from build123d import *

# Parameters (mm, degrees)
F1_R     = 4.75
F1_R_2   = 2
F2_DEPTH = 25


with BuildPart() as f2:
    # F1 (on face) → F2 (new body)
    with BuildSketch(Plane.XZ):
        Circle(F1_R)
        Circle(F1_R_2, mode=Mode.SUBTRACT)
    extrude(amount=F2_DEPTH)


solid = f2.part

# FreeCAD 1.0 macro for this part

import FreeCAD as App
import Part
import Sketcher

V = App.Vector

doc = App.newDocument("Part")
params = doc.addObject("Spreadsheet::Sheet", "Params")
for row, (alias, value) in enumerate([
    ("sketch1_diameter", "4 mm"),
    ("sketch1_diameter2", "9.5 mm"),
    ("pad1_length", "25 mm"),
], start=1):
    params.set(f"A{row}", alias)
    params.set(f"B{row}", "=" + value)
    params.setAlias(f"B{row}", alias)

body = doc.addObject("PartDesign::Body", "Body")

# Sketch on XZ plane
sketch1 = body.newObject("Sketcher::SketchObject", "Sketch")
sketch1.AttachmentSupport = (doc.getObject("XZ_Plane"), [""])
sketch1.MapMode = "FlatFace"
sketch1.addGeometry([
    Part.Circle(V(0, 0, 0), V(0, 0, 1), 4.8),
    Part.Circle(V(0, 0, 0), V(0, 0, 1), 2),
], False)
sketch1.addConstraint([
    Sketcher.Constraint("Coincident", 0, 3, -1, 1),
    Sketcher.Constraint("Coincident", 1, 3, -1, 1),
    Sketcher.Constraint("Diameter", 1, 4.0),
    Sketcher.Constraint("Diameter", 0, 9.5),
])
sketch1.setExpression("Constraints[2]", "Params.sketch1_diameter")
sketch1.setExpression("Constraints[3]", "Params.sketch1_diameter2")
pad1 = body.newObject("PartDesign::Pad", "Pad")
pad1.Profile = sketch1
pad1.setExpression("Length", "Params.pad1_length")

doc.recompute()
